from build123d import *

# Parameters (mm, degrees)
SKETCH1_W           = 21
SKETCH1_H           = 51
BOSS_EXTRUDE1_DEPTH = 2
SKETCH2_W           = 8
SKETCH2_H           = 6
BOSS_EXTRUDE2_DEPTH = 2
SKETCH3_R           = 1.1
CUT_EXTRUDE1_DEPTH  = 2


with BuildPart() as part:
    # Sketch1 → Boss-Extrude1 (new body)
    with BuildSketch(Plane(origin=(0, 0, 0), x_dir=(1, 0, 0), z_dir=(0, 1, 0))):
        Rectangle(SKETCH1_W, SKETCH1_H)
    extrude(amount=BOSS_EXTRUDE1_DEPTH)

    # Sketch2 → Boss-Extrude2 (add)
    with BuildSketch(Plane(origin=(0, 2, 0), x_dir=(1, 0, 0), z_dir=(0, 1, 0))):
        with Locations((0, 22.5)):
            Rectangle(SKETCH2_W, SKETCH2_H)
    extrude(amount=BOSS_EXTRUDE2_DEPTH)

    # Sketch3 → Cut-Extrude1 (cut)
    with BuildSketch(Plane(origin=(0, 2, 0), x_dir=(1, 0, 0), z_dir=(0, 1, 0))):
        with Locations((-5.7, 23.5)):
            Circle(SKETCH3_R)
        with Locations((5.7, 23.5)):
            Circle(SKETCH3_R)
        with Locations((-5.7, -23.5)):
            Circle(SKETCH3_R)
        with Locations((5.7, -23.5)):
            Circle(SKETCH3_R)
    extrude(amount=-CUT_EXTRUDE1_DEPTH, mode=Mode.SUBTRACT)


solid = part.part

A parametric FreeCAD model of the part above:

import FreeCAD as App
import Part
import Sketcher

V = App.Vector
Q = App.Units.Quantity


def add_polygon(sketch, points):
    """Adds a closed chain of lines whose ends are joined by coincident constraints."""
    first, n = sketch.GeometryCount, len(points)
    for a, b in zip(points, points[1:] + points[:1]):
        sketch.addGeometry(Part.LineSegment(App.Vector(*a, 0), App.Vector(*b, 0)), False)
    for i in range(n):
        sketch.addConstraint(Sketcher.Constraint("Coincident", first + i, 2, first + (i + 1) % n, 1))

doc = App.newDocument("Part")
body = doc.addObject("PartDesign::Body", "Body")

sketch1 = body.newObject("Sketcher::SketchObject", "Sketch")
sketch1.AttachmentSupport = (doc.getObject("XZ_Plane"), [""])
sketch1.MapMode = "FlatFace"
add_polygon(sketch1, [(-10, -26), (-10, 26), (10, 26), (10, -26)])
sketch1.addConstraint([
    Sketcher.Constraint("Vertical", 0),
    Sketcher.Constraint("Horizontal", 1),
    Sketcher.Constraint("Vertical", 2),
    Sketcher.Constraint("Horizontal", 3),
    Sketcher.Constraint("Symmetric", 0, 2, 2, 2, -1, 1),
    Sketcher.Constraint("DistanceX", 1, 1, 1, 2, Q("21 mm")),
    Sketcher.Constraint("DistanceY", 0, 1, 0, 2, Q("51 mm")),
])
pad1 = body.newObject("PartDesign::Pad", "Pad")
pad1.Profile = sketch1
pad1.Length = 2
pad1.Reversed = True

sketch2 = body.newObject("Sketcher::SketchObject", "Sketch001")
sketch2.AttachmentSupport = (doc.getObject("XZ_Plane"), [""])
sketch2.MapMode = "FlatFace"
sketch2.AttachmentOffset = App.Placement(V(0, 0, -2), App.Rotation())
add_polygon(sketch2, [(-4, -26), (-4, -20), (4, -20), (4, -26)])
sketch2.addConstraint([
    Sketcher.Constraint("Vertical", 0),
    Sketcher.Constraint("Horizontal", 1),
    Sketcher.Constraint("Vertical", 2),
    Sketcher.Constraint("Horizontal", 3),
    Sketcher.Constraint("DistanceX", 1, 1, 1, 2, Q("8 mm")),
    Sketcher.Constraint("DistanceY", 0, 1, 0, 2, Q("6 mm")),
    Sketcher.Constraint("DistanceX", 0, 2, -1, 1, Q("4 mm")),
    Sketcher.Constraint("DistanceY", 0, 2, -1, 1, Q("19.5 mm")),
])
pad2 = body.newObject("PartDesign::Pad", "Pad001")
pad2.Profile = sketch2
pad2.Length = 2
pad2.Reversed = True

sketch3 = body.newObject("Sketcher::SketchObject", "Sketch002")
sketch3.AttachmentSupport = (doc.getObject("XZ_Plane"), [""])
sketch3.MapMode = "FlatFace"
sketch3.AttachmentOffset = App.Placement(V(0, 0, -2), App.Rotation())
sketch3.addGeometry([
    Part.Circle(V(-5.7, -23.5, 0), V(0, 0, 1), 1.1),
    Part.Circle(V(5.7, -23.5, 0), V(0, 0, 1), 1.1),
    Part.Circle(V(-5.7, 23.5, 0), V(0, 0, 1), 1.1),
    Part.Circle(V(5.7, 23.5, 0), V(0, 0, 1), 1.1),
], False)
sketch3.addConstraint([
    Sketcher.Constraint("Equal", 0, 1),
    Sketcher.Constraint("Equal", 1, 2),
    Sketcher.Constraint("Equal", 2, 3),
    Sketcher.Constraint("Symmetric", 1, 3, 2, 3, -1, 1),
    Sketcher.Constraint("Symmetric", 0, 3, 3, 3, -1, 1),
    Sketcher.Constraint("Symmetric", 0, 3, 1, 3, -2),
    Sketcher.Constraint("Diameter", 0, Q("2.2 mm")),
    Sketcher.Constraint("DistanceY", 0, 3, 2, 3, Q("47 mm")),
    Sketcher.Constraint("DistanceX", 0, 3, -1, 1, Q("5.7 mm")),
])
pocket1 = body.newObject("PartDesign::Pocket", "Pocket")
pocket1.Profile = sketch3
pocket1.Length = 2
pocket1.Reversed = True

doc.recompute()
